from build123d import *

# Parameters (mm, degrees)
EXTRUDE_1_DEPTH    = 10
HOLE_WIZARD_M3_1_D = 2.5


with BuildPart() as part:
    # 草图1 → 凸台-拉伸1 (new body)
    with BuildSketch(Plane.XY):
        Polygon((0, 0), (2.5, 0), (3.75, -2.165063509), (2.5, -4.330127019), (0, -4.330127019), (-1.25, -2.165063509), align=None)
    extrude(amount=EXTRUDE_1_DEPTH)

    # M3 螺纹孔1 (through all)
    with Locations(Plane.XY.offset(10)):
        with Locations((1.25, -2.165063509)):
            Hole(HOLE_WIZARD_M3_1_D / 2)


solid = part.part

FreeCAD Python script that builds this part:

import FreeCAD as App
import Part
import Sketcher
from FreeCAD import Vector
Q = App.Units.Quantity


def add_polygon(sketch, points):
    """Adds a closed chain of lines whose ends are joined by coincident constraints."""
    first, n = sketch.GeometryCount, len(points)
    for a, b in zip(points, points[1:] + points[:1]):
        sketch.addGeometry(Part.LineSegment(App.Vector(*a, 0), App.Vector(*b, 0)), False)
    for i in range(n):
        sketch.addConstraint(Sketcher.Constraint("Coincident", first + i, 2, first + (i + 1) % n, 1))

doc = App.newDocument("Part")
body = doc.addObject("PartDesign::Body", "Body")

sketch1 = body.newObject("Sketcher::SketchObject", "Sketch")
sketch1.AttachmentSupport = (doc.getObject("XY_Plane"), [""])
sketch1.MapMode = "FlatFace"
add_polygon(sketch1, [(2.5, 0), (0, 0), (-1.25, -2.165064), (0, -4.330127), (2.5, -4.330127), (3.75, -2.165064)])
sketch1.addConstraint(Sketcher.Constraint("Horizontal", 0))
sketch1.addConstraint(Sketcher.Constraint("Horizontal", 3))
sketch1.addConstraint(Sketcher.Constraint("Coincident", 0, 2, -1, 1))
sketch1.addConstraint(Sketcher.Constraint("PointOnObject", 2, 2, -2))
sketch1.addConstraint(Sketcher.Constraint("Parallel", 1, 4))
sketch1.addConstraint(Sketcher.Constraint("Parallel", 2, 5))
sketch1.addConstraint(Sketcher.Constraint("Horizontal", 1, 2, 4, 2))
sketch1.addConstraint(Sketcher.Constraint("Vertical", 3, 2, 5, 2))
sketch1.addConstraint(Sketcher.Constraint("Angle", 1, Q("-120 deg")))
sketch1.addConstraint(Sketcher.Constraint("DistanceX", 0, 2, 0, 1, Q("2.5 mm")))
sketch1.addConstraint(Sketcher.Constraint("DistanceX", 1, 2, 4, 2, Q("5 mm")))
pad1 = body.newObject("PartDesign::Pad", "Pad")
pad1.Profile = sketch1
pad1.Length = 10

sketch2 = body.newObject("Sketcher::SketchObject", "Sketch001")
sketch2.AttachmentSupport = (doc.getObject("XY_Plane"), [""])
sketch2.MapMode = "FlatFace"
sketch2.AttachmentOffset = App.Placement(Vector(0, 0, 10), App.Rotation())
sketch2.addGeometry(Part.Circle(Vector(1.25, -2.165064, 0), Vector(0, 0, 1), 1.25), False)
sketch2.addConstraint(Sketcher.Constraint("Diameter", 0, Q("2.5 mm")))
sketch2.addConstraint(Sketcher.Constraint("DistanceX", -1, 1, 0, 3, Q("1.25 mm")))
sketch2.addConstraint(Sketcher.Constraint("DistanceY", 0, 3, -1, 1, Q("2.165064 mm")))
doc.recompute()
hole = body.newObject("PartDesign::Hole", "Hole")
hole.Profile = sketch2
hole.ThreadType = "None"
hole.Diameter = 2.5
hole.DepthType = "ThroughAll"

doc.recompute()
